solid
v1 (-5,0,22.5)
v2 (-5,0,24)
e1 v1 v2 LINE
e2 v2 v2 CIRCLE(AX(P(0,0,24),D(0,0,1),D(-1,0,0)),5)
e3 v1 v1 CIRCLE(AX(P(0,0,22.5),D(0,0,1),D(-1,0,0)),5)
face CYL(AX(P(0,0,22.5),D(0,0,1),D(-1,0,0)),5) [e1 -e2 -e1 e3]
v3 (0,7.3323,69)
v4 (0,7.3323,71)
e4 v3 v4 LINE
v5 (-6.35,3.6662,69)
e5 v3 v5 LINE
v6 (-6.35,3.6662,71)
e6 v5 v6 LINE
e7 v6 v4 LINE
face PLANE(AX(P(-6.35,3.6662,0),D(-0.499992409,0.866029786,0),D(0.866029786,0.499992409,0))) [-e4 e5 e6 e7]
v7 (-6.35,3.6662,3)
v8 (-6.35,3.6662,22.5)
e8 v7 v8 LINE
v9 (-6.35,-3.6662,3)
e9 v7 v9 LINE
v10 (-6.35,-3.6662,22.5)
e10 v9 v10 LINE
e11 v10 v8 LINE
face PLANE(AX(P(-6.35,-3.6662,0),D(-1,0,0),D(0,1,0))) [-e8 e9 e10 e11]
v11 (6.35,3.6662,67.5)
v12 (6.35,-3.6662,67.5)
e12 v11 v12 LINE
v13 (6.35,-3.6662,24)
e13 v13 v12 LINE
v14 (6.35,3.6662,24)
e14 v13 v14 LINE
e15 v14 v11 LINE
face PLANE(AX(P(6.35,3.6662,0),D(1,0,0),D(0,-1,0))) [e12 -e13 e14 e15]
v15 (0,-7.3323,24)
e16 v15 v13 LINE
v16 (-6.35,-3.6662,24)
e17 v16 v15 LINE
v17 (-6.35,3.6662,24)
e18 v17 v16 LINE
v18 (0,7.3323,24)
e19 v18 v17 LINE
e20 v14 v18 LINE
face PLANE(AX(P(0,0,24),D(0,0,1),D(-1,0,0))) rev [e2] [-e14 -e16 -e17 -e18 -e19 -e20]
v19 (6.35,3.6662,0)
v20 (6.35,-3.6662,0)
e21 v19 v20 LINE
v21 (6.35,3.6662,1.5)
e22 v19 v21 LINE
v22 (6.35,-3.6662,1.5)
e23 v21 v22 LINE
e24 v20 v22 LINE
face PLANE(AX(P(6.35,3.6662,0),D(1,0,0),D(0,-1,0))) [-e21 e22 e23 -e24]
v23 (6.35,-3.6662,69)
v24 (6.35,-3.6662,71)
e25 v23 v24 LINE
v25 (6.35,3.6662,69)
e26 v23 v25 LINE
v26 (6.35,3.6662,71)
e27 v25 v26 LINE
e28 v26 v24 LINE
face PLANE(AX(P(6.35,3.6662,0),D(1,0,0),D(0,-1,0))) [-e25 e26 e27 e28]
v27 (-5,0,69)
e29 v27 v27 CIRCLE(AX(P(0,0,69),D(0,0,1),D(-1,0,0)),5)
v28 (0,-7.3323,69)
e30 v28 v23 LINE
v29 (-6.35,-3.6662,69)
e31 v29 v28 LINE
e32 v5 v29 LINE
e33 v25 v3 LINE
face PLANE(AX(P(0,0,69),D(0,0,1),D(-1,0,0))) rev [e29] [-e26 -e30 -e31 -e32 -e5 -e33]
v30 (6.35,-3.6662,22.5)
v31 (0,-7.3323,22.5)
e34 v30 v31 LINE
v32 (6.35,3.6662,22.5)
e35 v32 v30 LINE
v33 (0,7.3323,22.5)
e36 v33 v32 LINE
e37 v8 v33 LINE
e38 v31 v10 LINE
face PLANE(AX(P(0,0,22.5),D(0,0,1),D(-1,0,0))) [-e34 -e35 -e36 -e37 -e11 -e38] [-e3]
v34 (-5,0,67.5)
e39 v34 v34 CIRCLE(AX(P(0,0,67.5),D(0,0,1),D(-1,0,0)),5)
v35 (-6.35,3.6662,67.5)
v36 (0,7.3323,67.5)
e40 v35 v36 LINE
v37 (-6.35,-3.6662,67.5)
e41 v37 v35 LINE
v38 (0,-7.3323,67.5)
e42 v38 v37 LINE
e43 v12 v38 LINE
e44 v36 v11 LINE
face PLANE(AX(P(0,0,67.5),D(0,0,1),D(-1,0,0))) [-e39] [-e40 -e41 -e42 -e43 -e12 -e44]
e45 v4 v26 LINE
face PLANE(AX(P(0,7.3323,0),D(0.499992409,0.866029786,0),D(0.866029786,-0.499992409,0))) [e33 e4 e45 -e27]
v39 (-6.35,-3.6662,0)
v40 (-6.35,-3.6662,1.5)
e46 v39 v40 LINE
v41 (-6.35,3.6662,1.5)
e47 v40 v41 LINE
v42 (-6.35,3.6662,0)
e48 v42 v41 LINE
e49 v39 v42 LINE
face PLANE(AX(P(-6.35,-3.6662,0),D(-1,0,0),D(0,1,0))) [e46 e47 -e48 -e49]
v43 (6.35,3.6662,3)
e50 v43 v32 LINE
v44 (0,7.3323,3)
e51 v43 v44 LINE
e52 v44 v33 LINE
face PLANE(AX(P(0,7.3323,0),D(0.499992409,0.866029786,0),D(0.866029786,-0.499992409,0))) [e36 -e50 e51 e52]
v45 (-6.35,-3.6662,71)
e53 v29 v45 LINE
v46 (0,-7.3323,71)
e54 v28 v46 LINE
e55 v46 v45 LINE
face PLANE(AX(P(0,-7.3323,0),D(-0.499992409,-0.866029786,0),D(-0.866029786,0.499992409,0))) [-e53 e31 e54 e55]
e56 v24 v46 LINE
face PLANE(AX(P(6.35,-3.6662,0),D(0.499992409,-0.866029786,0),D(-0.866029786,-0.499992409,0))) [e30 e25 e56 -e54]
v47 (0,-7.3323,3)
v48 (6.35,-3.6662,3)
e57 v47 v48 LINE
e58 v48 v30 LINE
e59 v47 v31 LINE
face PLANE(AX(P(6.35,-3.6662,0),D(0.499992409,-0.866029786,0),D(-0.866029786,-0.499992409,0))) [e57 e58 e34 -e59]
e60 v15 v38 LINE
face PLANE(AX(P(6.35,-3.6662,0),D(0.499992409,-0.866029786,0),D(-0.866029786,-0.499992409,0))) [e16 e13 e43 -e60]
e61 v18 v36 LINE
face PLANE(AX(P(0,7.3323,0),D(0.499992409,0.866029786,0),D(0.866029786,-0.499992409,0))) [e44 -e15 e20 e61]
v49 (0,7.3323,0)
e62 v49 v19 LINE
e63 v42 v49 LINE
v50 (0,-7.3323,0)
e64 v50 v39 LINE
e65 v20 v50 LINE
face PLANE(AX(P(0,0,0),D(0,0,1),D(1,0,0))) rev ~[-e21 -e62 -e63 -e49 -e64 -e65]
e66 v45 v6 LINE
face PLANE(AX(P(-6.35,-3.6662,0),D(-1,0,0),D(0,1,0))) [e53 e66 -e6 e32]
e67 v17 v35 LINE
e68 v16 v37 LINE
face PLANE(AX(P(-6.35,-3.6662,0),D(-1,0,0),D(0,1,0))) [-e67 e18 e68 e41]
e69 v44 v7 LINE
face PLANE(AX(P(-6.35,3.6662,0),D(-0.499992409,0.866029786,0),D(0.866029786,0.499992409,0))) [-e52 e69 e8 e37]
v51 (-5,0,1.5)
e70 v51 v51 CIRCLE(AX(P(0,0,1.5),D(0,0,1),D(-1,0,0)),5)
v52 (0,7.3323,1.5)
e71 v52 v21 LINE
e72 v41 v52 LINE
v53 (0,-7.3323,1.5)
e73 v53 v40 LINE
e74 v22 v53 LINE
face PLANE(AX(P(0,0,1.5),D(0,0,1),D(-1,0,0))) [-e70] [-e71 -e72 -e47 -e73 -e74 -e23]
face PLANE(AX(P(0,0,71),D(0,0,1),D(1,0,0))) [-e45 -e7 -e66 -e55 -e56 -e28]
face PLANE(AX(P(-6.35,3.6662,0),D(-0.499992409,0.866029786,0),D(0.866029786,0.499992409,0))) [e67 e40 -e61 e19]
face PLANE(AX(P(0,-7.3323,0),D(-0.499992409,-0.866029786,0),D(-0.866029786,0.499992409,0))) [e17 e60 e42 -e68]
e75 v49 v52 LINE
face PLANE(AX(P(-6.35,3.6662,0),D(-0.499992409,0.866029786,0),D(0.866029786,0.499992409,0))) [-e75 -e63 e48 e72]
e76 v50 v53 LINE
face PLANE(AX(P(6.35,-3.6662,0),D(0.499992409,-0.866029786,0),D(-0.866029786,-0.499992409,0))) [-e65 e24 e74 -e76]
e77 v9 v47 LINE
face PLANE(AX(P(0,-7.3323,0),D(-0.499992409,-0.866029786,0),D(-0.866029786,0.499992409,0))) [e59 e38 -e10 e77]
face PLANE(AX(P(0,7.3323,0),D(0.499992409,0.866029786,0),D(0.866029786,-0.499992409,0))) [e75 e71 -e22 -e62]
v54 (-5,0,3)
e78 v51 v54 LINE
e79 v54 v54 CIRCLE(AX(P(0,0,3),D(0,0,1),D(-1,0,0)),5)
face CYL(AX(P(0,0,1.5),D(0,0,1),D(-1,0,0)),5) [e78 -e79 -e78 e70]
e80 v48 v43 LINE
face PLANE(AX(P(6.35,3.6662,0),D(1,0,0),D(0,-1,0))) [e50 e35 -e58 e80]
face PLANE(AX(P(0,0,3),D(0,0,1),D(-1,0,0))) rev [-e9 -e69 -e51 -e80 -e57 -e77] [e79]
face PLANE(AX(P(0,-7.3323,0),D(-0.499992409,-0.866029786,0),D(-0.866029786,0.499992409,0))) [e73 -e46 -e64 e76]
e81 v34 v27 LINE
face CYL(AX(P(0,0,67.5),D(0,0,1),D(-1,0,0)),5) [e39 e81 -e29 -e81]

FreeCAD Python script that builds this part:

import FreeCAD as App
import Part
import Sketcher
from FreeCAD import Vector
Q = App.Units.Quantity

doc = App.newDocument("Part")
params = doc.addObject("Spreadsheet::Sheet", "Params")
for row, (alias, value) in enumerate([
    ("pad1_length", "71 mm"),
    ("sketch2_width", "10 mm"),
    ("sketch2_height", "1.5 mm"),
    ("groove_angle", "360 deg"),
], start=1):
    params.set(f"A{row}", alias)
    params.set(f"B{row}", "=" + value)
    params.setAlias(f"B{row}", alias)

body = doc.addObject("PartDesign::Body", "Body")

# Sketch on XY plane
sketch1 = body.newObject("Sketcher::SketchObject", "Sketch")
sketch1.AttachmentSupport = (doc.getObject("XY_Plane"), [""])
sketch1.MapMode = "FlatFace"
sketch1.addGeometry([
    Part.LineSegment(Vector(6, -4, 0), Vector(6, 4, 0)),  # 0
    Part.LineSegment(Vector(6, 4, 0), Vector(0, 7, 0)),  # 1
    Part.LineSegment(Vector(0, 7, 0), Vector(-6, 4, 0)),  # 2
    Part.LineSegment(Vector(-6, 4, 0), Vector(-6, -4, 0)),  # 3
    Part.LineSegment(Vector(-6, -4, 0), Vector(0, -7, 0)),  # 4
    Part.LineSegment(Vector(0, -7, 0), Vector(6, -4, 0)),  # 5
], False)
sketch1.addConstraint([
    Sketcher.Constraint("Coincident", 0, 2, 1, 1),
    Sketcher.Constraint("Coincident", 1, 2, 2, 1),
    Sketcher.Constraint("Coincident", 2, 2, 3, 1),
    Sketcher.Constraint("Coincident", 3, 2, 4, 1),
    Sketcher.Constraint("Coincident", 4, 2, 5, 1),
    Sketcher.Constraint("Coincident", 5, 2, 0, 1),
    Sketcher.Constraint("Vertical", 0),
    Sketcher.Constraint("Vertical", 3),
    Sketcher.Constraint("Symmetric", 0, 2, 3, 2, -1, 1),
    Sketcher.Constraint("Symmetric", 1, 2, 4, 2, -1, 1),
    Sketcher.Constraint("PointOnObject", 1, 2, -2),
    Sketcher.Constraint("Parallel", 2, 5),
    Sketcher.Constraint("Horizontal", 0, 2, 2, 2),
    Sketcher.Constraint("DistanceX", 2, 2, 0, 2, 12.7),
    Sketcher.Constraint("Angle", 1, Q("150.0005 deg")),
    Sketcher.Constraint("DistanceY", 0, 1, 0, 2, 7.3324),
])
pad1 = body.newObject("PartDesign::Pad", "Pad")
pad1.Profile = sketch1
pad1.setExpression("Length", "Params.pad1_length")

# Sketch on XZ plane
sketch2 = body.newObject("Sketcher::SketchObject", "Sketch001")
sketch2.AttachmentSupport = (doc.getObject("XZ_Plane"), [""])
sketch2.MapMode = "FlatFace"
sketch2.addGeometry([
    Part.LineSegment(Vector(-5, 67.5, 0), Vector(-15, 67.5, 0)),  # 0
    Part.LineSegment(Vector(-15, 67.5, 0), Vector(-15, 69, 0)),  # 1
    Part.LineSegment(Vector(-15, 69, 0), Vector(-5, 69, 0)),  # 2
    Part.LineSegment(Vector(-5, 69, 0), Vector(-5, 67.5, 0)),  # 3
    Part.LineSegment(Vector(-5, 22.5, 0), Vector(-15, 22.5, 0)),  # 4
    Part.LineSegment(Vector(-15, 22.5, 0), Vector(-15, 24, 0)),  # 5
    Part.LineSegment(Vector(-15, 24, 0), Vector(-5, 24, 0)),  # 6
    Part.LineSegment(Vector(-5, 24, 0), Vector(-5, 22.5, 0)),  # 7
    Part.LineSegment(Vector(-5, 1.5, 0), Vector(-15, 1.5, 0)),  # 8
    Part.LineSegment(Vector(-15, 1.5, 0), Vector(-15, 3, 0)),  # 9
    Part.LineSegment(Vector(-15, 3, 0), Vector(-5, 3, 0)),  # 10
    Part.LineSegment(Vector(-5, 3, 0), Vector(-5, 1.5, 0)),  # 11
], False)
sketch2.addConstraint([
    Sketcher.Constraint("Coincident", 0, 2, 1, 1),
    Sketcher.Constraint("Coincident", 1, 2, 2, 1),
    Sketcher.Constraint("Coincident", 2, 2, 3, 1),
    Sketcher.Constraint("Coincident", 3, 2, 0, 1),
    Sketcher.Constraint("Coincident", 4, 2, 5, 1),
    Sketcher.Constraint("Coincident", 5, 2, 6, 1),
    Sketcher.Constraint("Coincident", 6, 2, 7, 1),
    Sketcher.Constraint("Coincident", 7, 2, 4, 1),
    Sketcher.Constraint("Coincident", 8, 2, 9, 1),
    Sketcher.Constraint("Coincident", 9, 2, 10, 1),
    Sketcher.Constraint("Coincident", 10, 2, 11, 1),
    Sketcher.Constraint("Coincident", 11, 2, 8, 1),
    Sketcher.Constraint("Horizontal", 0),
    Sketcher.Constraint("Vertical", 1),
    Sketcher.Constraint("Horizontal", 2),
    Sketcher.Constraint("Vertical", 3),
    Sketcher.Constraint("Horizontal", 4),
    Sketcher.Constraint("Vertical", 5),
    Sketcher.Constraint("Horizontal", 6),
    Sketcher.Constraint("Vertical", 7),
    Sketcher.Constraint("Horizontal", 8),
    Sketcher.Constraint("Vertical", 9),
    Sketcher.Constraint("Horizontal", 10),
    Sketcher.Constraint("Vertical", 11),
    Sketcher.Constraint("Vertical", 1, 2, 4, 2),
    Sketcher.Constraint("Vertical", 3, 2, 6, 2),
    Sketcher.Constraint("Vertical", 5, 2, 8, 2),
    Sketcher.Constraint("Vertical", 7, 2, 10, 2),
    Sketcher.Constraint("Equal", 3, 5),
    Sketcher.Constraint("Equal", 7, 9),
    Sketcher.Constraint("DistanceX", 0, 2, 0, 1, 10.0),
    Sketcher.Constraint("DistanceY", 1, 1, 1, 2, 1.5),
    Sketcher.Constraint("DistanceX", 2, 2, -1, 1, 5.0),
    Sketcher.Constraint("DistanceY", -1, 1, 8, 2, 1.5),
    Sketcher.Constraint("DistanceY", -1, 1, 1, 2, 69.0),
    Sketcher.Constraint("DistanceY", -1, 1, 5, 2, 24.0),
])
sketch2.setExpression("Constraints[30]", "Params.sketch2_width")
sketch2.setExpression("Constraints[31]", "Params.sketch2_height")
groove = body.newObject("PartDesign::Groove", "Groove")
groove.Profile = sketch2
groove.ReferenceAxis = (sketch2, ["V_Axis"])
groove.setExpression("Angle", "Params.groove_angle")

doc.recompute()
